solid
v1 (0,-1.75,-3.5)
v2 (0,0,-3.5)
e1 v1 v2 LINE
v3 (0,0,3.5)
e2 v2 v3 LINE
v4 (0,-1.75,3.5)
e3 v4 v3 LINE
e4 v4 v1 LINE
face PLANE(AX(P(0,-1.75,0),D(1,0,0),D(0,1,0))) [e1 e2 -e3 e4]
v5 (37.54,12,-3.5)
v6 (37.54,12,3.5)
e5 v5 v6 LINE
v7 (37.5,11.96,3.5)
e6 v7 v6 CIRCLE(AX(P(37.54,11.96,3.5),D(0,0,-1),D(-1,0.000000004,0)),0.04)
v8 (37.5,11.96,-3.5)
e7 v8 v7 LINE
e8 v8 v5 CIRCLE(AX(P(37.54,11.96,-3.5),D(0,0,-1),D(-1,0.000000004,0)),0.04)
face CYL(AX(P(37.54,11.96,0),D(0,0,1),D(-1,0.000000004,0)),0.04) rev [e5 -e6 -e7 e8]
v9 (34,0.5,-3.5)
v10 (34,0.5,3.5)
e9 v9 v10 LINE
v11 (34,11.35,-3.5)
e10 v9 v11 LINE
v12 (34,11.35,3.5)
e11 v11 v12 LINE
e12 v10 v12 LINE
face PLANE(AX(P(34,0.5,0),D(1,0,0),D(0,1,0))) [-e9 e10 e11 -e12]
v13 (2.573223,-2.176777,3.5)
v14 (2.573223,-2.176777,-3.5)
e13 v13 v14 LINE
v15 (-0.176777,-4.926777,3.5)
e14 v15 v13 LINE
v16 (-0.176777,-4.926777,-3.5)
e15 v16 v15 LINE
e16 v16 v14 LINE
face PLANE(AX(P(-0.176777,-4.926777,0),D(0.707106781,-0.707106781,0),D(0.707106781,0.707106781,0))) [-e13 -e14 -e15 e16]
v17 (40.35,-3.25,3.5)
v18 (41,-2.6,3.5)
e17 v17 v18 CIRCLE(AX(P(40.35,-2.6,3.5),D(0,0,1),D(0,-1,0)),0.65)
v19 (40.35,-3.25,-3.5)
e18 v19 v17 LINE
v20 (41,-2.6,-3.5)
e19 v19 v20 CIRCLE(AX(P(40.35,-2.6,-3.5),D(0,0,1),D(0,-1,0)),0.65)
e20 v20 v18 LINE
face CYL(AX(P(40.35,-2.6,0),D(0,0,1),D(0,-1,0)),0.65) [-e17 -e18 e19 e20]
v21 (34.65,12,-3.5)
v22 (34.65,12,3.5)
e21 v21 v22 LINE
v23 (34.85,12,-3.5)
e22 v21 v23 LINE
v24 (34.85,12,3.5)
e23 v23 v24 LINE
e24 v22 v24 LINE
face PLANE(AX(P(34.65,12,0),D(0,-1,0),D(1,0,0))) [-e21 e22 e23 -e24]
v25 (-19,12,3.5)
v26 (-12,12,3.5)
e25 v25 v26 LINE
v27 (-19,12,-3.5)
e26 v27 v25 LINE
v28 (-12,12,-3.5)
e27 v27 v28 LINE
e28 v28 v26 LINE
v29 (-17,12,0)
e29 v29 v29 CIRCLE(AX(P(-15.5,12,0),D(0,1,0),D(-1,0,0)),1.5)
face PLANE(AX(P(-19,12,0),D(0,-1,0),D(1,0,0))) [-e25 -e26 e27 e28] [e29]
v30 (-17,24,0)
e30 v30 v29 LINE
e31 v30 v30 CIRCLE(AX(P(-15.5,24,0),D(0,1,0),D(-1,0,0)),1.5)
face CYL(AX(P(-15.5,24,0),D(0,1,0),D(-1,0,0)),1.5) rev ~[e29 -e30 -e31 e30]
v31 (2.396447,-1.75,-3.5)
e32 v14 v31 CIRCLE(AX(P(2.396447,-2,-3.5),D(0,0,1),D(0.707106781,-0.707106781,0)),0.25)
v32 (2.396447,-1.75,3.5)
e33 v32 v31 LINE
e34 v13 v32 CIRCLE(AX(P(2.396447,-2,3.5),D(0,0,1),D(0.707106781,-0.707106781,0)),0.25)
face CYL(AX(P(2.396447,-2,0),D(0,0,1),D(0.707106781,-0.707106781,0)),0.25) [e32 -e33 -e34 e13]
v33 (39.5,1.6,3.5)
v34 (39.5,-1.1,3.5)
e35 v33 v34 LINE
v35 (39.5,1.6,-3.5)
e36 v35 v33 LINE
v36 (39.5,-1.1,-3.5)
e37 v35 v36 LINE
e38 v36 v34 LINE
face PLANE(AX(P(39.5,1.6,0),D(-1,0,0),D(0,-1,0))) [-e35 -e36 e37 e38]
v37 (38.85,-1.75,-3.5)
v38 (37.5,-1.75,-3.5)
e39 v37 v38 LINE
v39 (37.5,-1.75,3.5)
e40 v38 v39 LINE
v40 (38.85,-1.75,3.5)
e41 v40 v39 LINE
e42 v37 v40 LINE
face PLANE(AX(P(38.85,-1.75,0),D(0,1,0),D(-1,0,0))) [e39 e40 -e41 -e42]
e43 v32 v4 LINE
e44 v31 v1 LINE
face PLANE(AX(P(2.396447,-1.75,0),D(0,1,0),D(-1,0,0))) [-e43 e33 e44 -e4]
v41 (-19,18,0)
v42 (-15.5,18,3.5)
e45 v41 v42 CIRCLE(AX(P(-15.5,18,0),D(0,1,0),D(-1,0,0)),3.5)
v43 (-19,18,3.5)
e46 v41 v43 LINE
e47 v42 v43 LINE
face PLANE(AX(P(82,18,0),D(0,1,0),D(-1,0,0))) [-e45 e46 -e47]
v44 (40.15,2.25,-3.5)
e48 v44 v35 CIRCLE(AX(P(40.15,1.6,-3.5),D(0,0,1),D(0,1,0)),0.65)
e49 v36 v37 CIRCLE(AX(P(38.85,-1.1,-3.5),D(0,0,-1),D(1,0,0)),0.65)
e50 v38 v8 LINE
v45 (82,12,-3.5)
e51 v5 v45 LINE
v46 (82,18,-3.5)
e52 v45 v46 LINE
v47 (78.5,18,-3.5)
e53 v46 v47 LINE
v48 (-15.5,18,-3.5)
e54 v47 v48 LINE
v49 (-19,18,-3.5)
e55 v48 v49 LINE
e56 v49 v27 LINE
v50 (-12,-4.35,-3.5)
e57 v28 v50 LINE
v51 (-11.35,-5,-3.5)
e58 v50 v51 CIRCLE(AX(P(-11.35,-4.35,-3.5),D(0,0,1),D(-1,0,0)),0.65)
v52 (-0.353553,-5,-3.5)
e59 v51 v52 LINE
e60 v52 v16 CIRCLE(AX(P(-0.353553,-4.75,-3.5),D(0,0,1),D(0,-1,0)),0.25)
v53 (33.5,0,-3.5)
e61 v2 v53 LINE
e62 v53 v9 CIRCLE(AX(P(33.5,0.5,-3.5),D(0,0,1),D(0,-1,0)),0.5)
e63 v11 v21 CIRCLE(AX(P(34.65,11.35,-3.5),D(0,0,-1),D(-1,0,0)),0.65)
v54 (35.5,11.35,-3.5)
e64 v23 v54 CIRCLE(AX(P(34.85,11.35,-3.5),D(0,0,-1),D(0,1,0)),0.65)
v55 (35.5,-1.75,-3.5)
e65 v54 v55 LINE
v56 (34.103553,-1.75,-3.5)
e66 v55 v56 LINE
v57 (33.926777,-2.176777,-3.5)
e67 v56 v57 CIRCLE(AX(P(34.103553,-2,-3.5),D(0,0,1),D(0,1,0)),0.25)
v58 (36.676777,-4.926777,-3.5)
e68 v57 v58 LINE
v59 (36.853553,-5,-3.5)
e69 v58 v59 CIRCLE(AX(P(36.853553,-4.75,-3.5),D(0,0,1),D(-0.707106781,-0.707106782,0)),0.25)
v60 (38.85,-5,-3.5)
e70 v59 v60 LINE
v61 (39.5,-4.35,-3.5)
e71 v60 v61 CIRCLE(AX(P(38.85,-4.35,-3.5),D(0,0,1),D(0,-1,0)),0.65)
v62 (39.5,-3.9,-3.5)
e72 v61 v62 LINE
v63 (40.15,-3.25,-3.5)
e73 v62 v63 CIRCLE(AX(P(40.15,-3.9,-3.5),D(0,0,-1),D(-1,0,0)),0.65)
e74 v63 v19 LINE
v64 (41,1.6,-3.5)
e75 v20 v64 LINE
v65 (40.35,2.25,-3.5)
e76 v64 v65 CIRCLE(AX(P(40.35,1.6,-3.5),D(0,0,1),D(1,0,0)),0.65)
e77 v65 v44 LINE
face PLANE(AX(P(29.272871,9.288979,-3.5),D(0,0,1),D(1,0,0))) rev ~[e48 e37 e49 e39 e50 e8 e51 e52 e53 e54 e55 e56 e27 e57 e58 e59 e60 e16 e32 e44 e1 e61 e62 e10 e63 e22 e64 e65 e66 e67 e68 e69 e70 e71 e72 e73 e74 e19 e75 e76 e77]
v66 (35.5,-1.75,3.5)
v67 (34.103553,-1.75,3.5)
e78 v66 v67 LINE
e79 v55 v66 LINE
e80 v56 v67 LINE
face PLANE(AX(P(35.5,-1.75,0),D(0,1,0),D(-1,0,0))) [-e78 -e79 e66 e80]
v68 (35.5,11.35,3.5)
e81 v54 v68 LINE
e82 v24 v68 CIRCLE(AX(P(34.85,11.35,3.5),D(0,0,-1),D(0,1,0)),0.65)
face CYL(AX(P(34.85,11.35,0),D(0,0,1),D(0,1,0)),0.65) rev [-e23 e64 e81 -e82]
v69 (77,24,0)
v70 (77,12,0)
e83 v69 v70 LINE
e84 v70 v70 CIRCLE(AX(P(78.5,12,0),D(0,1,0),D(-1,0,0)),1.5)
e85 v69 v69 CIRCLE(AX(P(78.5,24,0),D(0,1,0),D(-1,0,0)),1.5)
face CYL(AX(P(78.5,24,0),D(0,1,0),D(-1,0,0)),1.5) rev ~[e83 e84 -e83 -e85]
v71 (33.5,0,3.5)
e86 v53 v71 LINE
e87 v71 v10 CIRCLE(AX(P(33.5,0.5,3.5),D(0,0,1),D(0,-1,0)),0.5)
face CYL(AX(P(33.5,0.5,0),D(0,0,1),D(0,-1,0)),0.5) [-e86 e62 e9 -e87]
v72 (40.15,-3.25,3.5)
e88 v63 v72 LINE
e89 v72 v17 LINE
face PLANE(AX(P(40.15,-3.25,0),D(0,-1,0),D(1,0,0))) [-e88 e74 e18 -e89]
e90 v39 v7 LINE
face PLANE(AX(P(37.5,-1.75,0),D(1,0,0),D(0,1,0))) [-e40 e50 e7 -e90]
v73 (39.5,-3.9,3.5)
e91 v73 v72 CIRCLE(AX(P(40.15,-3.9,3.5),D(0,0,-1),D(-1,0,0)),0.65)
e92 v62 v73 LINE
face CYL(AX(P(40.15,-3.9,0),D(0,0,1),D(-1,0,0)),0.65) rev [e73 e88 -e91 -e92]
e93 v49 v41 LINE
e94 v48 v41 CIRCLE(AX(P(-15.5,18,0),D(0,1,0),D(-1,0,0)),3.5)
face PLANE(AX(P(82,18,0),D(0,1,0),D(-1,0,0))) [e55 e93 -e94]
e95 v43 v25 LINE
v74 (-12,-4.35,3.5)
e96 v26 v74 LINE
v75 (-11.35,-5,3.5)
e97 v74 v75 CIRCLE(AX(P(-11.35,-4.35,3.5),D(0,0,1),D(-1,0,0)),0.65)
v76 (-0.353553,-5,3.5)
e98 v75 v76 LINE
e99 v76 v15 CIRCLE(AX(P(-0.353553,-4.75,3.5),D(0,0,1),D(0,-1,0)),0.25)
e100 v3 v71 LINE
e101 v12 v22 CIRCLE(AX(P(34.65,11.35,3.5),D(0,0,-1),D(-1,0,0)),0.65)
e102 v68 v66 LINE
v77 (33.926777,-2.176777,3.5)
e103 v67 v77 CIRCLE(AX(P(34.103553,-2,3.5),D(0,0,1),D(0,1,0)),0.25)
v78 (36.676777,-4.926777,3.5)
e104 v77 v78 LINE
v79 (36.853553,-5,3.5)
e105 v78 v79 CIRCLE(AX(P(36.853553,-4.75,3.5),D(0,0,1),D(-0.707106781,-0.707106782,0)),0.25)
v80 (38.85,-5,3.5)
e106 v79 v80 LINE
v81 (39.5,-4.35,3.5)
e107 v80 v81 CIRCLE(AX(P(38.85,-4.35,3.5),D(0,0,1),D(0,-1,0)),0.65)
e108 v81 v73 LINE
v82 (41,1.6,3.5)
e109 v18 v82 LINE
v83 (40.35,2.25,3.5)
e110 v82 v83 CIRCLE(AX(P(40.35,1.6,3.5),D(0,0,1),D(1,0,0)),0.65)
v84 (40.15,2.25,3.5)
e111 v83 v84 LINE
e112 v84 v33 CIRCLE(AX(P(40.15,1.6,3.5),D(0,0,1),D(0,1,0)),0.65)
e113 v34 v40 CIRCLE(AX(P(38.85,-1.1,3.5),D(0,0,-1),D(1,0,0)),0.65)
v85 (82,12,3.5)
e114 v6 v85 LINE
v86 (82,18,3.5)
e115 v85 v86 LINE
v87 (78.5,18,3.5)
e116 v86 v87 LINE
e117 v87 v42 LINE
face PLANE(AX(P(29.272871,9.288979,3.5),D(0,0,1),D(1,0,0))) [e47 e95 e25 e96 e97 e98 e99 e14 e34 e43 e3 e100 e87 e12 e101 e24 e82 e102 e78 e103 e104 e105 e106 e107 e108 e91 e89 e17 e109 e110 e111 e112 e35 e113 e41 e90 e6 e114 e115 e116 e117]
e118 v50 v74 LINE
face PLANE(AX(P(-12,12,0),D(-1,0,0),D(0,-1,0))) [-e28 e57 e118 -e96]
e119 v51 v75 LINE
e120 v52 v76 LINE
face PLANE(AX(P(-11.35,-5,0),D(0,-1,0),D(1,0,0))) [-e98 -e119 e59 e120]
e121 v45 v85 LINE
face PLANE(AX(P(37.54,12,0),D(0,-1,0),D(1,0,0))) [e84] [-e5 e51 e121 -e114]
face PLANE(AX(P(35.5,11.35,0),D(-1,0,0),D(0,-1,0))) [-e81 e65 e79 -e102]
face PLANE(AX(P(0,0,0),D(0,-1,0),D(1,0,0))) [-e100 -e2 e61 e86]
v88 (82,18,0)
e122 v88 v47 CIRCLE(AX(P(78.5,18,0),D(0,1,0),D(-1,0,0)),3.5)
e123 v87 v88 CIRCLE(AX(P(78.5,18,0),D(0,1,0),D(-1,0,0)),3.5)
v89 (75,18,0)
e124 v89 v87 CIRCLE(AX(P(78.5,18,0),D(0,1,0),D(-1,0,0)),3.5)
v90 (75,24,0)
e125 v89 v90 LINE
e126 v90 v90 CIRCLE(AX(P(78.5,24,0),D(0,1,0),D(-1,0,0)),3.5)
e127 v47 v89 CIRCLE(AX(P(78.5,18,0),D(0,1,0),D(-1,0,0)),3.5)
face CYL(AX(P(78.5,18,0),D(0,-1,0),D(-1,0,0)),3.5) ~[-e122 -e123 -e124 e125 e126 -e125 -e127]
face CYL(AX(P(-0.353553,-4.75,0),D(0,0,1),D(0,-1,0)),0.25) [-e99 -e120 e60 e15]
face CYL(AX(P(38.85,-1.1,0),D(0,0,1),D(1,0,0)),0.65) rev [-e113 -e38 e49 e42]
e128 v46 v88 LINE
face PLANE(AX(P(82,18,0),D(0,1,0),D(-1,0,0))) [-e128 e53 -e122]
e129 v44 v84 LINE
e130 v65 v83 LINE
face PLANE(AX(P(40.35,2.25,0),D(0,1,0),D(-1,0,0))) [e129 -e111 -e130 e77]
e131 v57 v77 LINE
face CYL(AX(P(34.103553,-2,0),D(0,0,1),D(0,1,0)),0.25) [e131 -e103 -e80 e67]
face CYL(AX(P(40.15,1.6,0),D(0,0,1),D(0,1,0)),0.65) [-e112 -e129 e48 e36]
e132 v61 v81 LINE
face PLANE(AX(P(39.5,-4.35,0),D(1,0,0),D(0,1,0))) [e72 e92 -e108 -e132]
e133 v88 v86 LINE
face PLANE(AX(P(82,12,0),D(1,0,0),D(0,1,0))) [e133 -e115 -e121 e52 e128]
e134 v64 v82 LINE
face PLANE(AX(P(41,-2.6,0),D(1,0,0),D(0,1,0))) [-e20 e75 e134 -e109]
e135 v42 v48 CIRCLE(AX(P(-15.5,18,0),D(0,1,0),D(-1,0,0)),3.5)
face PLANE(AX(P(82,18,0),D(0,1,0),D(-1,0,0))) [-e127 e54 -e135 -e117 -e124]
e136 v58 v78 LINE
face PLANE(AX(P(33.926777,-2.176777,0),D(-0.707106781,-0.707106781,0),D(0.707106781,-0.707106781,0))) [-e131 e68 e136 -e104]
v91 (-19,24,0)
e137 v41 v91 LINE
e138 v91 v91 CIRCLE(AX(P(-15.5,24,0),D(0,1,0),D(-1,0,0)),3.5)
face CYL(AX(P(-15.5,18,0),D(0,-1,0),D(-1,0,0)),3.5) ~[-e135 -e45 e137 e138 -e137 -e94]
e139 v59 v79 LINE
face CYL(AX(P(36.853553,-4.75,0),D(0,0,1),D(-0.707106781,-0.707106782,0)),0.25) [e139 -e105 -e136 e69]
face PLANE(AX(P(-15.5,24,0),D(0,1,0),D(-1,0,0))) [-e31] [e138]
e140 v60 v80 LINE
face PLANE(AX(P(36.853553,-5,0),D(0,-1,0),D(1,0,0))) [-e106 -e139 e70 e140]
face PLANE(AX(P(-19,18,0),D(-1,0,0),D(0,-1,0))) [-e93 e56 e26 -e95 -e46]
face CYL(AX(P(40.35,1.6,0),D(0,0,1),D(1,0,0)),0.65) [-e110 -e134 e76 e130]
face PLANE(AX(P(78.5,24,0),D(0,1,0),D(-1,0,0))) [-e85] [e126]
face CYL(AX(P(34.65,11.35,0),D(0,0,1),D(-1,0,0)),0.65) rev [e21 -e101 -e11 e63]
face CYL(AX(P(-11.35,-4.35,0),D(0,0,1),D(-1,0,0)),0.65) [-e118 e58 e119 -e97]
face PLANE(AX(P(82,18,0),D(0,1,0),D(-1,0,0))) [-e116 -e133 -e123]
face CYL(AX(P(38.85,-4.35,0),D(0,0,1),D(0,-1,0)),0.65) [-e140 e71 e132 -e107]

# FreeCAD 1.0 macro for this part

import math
import FreeCAD as App
import Part
import Sketcher

V = App.Vector

doc = App.newDocument("Part")
body = doc.addObject("PartDesign::Body", "Body")

sketch1 = body.newObject("Sketcher::SketchObject", "Sketch")
sketch1.AttachmentSupport = (doc.getObject("XY_Plane"), [""])
sketch1.MapMode = "FlatFace"
sketch1.addGeometry([
    Part.LineSegment(V(0, -1.75, 0), V(0, 0, 0)),
    Part.LineSegment(V(0, 0, 0), V(33.5, 0, 0)),
    Part.ArcOfCircle(Part.Circle(V(33.5, 0.5, 0), V(0, 0, 1), 0.5), math.radians(-90), math.radians(0)),
    Part.LineSegment(V(34, 0.5, 0), V(34, 11.35, 0)),
    Part.ArcOfCircle(Part.Circle(V(34.65, 11.35, 0), V(0, 0, 1), 0.65), math.radians(90), math.radians(180)),
    Part.LineSegment(V(34.65, 12, 0), V(34.85, 12, 0)),
    Part.ArcOfCircle(Part.Circle(V(34.85, 11.35, 0), V(0, 0, 1), 0.65), math.radians(0), math.radians(90)),
    Part.LineSegment(V(35.5, 11.35, 0), V(35.5, -1.75, 0)),
    Part.LineSegment(V(35.5, -1.75, 0), V(34.104, -1.75, 0)),
    Part.ArcOfCircle(Part.Circle(V(34.104, -2, 0), V(0, 0, 1), 0.25), math.radians(90), math.radians(225)),
    Part.LineSegment(V(33.927, -2.177, 0), V(36.677, -4.927, 0)),
    Part.ArcOfCircle(Part.Circle(V(36.854, -4.75, 0), V(0, 0, 1), 0.25), math.radians(-135), math.radians(-90)),
    Part.LineSegment(V(36.854, -5, 0), V(38.85, -5, 0)),
    Part.ArcOfCircle(Part.Circle(V(38.85, -4.35, 0), V(0, 0, 1), 0.65), math.radians(-90), math.radians(0)),
    Part.LineSegment(V(39.5, -4.35, 0), V(39.5, -3.9, 0)),
    Part.ArcOfCircle(Part.Circle(V(40.15, -3.9, 0), V(0, 0, 1), 0.65), math.radians(90), math.radians(180)),
    Part.LineSegment(V(40.15, -3.25, 0), V(40.35, -3.25, 0)),
    Part.ArcOfCircle(Part.Circle(V(40.35, -2.6, 0), V(0, 0, 1), 0.65), math.radians(-90), math.radians(0)),
    Part.LineSegment(V(41, -2.6, 0), V(41, 1.6, 0)),
    Part.ArcOfCircle(Part.Circle(V(40.35, 1.6, 0), V(0, 0, 1), 0.65), math.radians(0), math.radians(90)),
    Part.LineSegment(V(40.35, 2.25, 0), V(40.15, 2.25, 0)),
    Part.ArcOfCircle(Part.Circle(V(40.15, 1.6, 0), V(0, 0, 1), 0.65), math.radians(90), math.radians(180)),
    Part.LineSegment(V(39.5, 1.6, 0), V(39.5, -1.1, 0)),
    Part.ArcOfCircle(Part.Circle(V(38.85, -1.1, 0), V(0, 0, 1), 0.65), math.radians(-90), math.radians(0)),
    Part.LineSegment(V(38.85, -1.75, 0), V(37.5, -1.75, 0)),
    Part.LineSegment(V(37.5, -1.75, 0), V(37.5, 11.96, 0)),
    Part.ArcOfCircle(Part.Circle(V(37.54, 11.96, 0), V(0, 0, 1), 0.04), math.radians(90), math.radians(180)),
    Part.LineSegment(V(37.54, 12, 0), V(82, 12, 0)),
    Part.LineSegment(V(82, 12, 0), V(82, 18, 0)),
    Part.LineSegment(V(82, 18, 0), V(-19, 18, 0)),
    Part.LineSegment(V(-19, 18, 0), V(-19, 12, 0)),
    Part.LineSegment(V(-19, 12, 0), V(-12, 12, 0)),
    Part.LineSegment(V(-12, 12, 0), V(-12, -4.35, 0)),
    Part.ArcOfCircle(Part.Circle(V(-11.35, -4.35, 0), V(0, 0, 1), 0.65), math.radians(180), math.radians(270)),
    Part.LineSegment(V(-11.35, -5, 0), V(-0.354, -5, 0)),
    Part.ArcOfCircle(Part.Circle(V(-0.354, -4.75, 0), V(0, 0, 1), 0.25), math.radians(-90), math.radians(-45)),
    Part.LineSegment(V(-0.177, -4.927, 0), V(2.573, -2.177, 0)),
    Part.ArcOfCircle(Part.Circle(V(2.396, -2, 0), V(0, 0, 1), 0.25), math.radians(-45), math.radians(90)),
    Part.LineSegment(V(2.396, -1.75, 0), V(0, -1.75, 0)),
], False)
sketch1.addConstraint([
    Sketcher.Constraint("Coincident", 0, 2, 1, 1),
    Sketcher.Constraint("Tangent", 1, 2, 2, 1),
    Sketcher.Constraint("Tangent", 2, 2, 3, 1),
    Sketcher.Constraint("Tangent", 3, 2, 4, 2),
    Sketcher.Constraint("Tangent", 4, 1, 5, 1),
    Sketcher.Constraint("Tangent", 5, 2, 6, 2),
    Sketcher.Constraint("Tangent", 6, 1, 7, 1),
    Sketcher.Constraint("Coincident", 7, 2, 8, 1),
    Sketcher.Constraint("Tangent", 8, 2, 9, 1),
    Sketcher.Constraint("Tangent", 9, 2, 10, 1),
    Sketcher.Constraint("Tangent", 10, 2, 11, 1),
    Sketcher.Constraint("Tangent", 11, 2, 12, 1),
    Sketcher.Constraint("Tangent", 12, 2, 13, 1),
    Sketcher.Constraint("Tangent", 13, 2, 14, 1),
    Sketcher.Constraint("Tangent", 14, 2, 15, 2),
    Sketcher.Constraint("Tangent", 15, 1, 16, 1),
    Sketcher.Constraint("Tangent", 16, 2, 17, 1),
    Sketcher.Constraint("Tangent", 17, 2, 18, 1),
    Sketcher.Constraint("Tangent", 18, 2, 19, 1),
    Sketcher.Constraint("Tangent", 19, 2, 20, 1),
    Sketcher.Constraint("Tangent", 20, 2, 21, 1),
    Sketcher.Constraint("Tangent", 21, 2, 22, 1),
    Sketcher.Constraint("Tangent", 22, 2, 23, 2),
    Sketcher.Constraint("Tangent", 23, 1, 24, 1),
    Sketcher.Constraint("Coincident", 24, 2, 25, 1),
    Sketcher.Constraint("Tangent", 25, 2, 26, 2),
    Sketcher.Constraint("Tangent", 26, 1, 27, 1),
    Sketcher.Constraint("Coincident", 27, 2, 28, 1),
    Sketcher.Constraint("Coincident", 28, 2, 29, 1),
    Sketcher.Constraint("Coincident", 29, 2, 30, 1),
    Sketcher.Constraint("Coincident", 30, 2, 31, 1),
    Sketcher.Constraint("Coincident", 31, 2, 32, 1),
    Sketcher.Constraint("Tangent", 32, 2, 33, 1),
    Sketcher.Constraint("Tangent", 33, 2, 34, 1),
    Sketcher.Constraint("Tangent", 34, 2, 35, 1),
    Sketcher.Constraint("Tangent", 35, 2, 36, 1),
    Sketcher.Constraint("Tangent", 36, 2, 37, 1),
    Sketcher.Constraint("Tangent", 37, 2, 38, 1),
    Sketcher.Constraint("Coincident", 38, 2, 0, 1),
    Sketcher.Constraint("Vertical", 0),
    Sketcher.Constraint("Horizontal", 1),
    Sketcher.Constraint("Vertical", 3),
    Sketcher.Constraint("Horizontal", 5),
    Sketcher.Constraint("Vertical", 7),
    Sketcher.Constraint("Horizontal", 8),
    Sketcher.Constraint("Horizontal", 12),
    Sketcher.Constraint("Vertical", 14),
    Sketcher.Constraint("Horizontal", 16),
    Sketcher.Constraint("Vertical", 18),
    Sketcher.Constraint("Horizontal", 20),
    Sketcher.Constraint("Vertical", 22),
    Sketcher.Constraint("Horizontal", 24),
    Sketcher.Constraint("Vertical", 25),
    Sketcher.Constraint("Horizontal", 27),
    Sketcher.Constraint("Vertical", 28),
    Sketcher.Constraint("Horizontal", 29),
    Sketcher.Constraint("Vertical", 30),
    Sketcher.Constraint("Horizontal", 31),
    Sketcher.Constraint("Vertical", 32),
    Sketcher.Constraint("Horizontal", 34),
    Sketcher.Constraint("Horizontal", 38),
    Sketcher.Constraint("Coincident", 0, 2, -1, 1),
    Sketcher.Constraint("Equal", 4, 6),
    Sketcher.Constraint("Equal", 9, 11),
    Sketcher.Constraint("Equal", 6, 13),
    Sketcher.Constraint("Equal", 13, 15),
    Sketcher.Constraint("Equal", 15, 17),
    Sketcher.Constraint("Equal", 17, 19),
    Sketcher.Constraint("Equal", 19, 21),
    Sketcher.Constraint("Equal", 21, 23),
    Sketcher.Constraint("Equal", 23, 33),
    Sketcher.Constraint("Equal", 11, 35),
    Sketcher.Constraint("Equal", 35, 37),
    Sketcher.Constraint("Perpendicular", 10, 36),
    Sketcher.Constraint("Horizontal", 13, 3, 33, 3),
    Sketcher.Constraint("Horizontal", 9, 3, 37, 3),
    Sketcher.Constraint("Horizontal", 8, 2, 23, 1),
    Sketcher.Constraint("Horizontal", 5, 2, 26, 1),
    Sketcher.Constraint("Horizontal", 27, 2, 30, 2),
    Sketcher.Constraint("Horizontal", 10, 2, 35, 2),
    Sketcher.Constraint("Vertical", 15, 3, 21, 3),
    Sketcher.Constraint("Equal", 5, 16),
    Sketcher.Constraint("Radius", 2, 0.5),
    Sketcher.Constraint("DistanceX", 29, 2, 29, 1, 101.0),
    Sketcher.Constraint("DistanceX", 31, 1, 31, 2, 7.0),
    Sketcher.Constraint("DistanceY", 28, 1, 28, 2, 6.0),
    Sketcher.Constraint("Radius", 4, 0.65),
    Sketcher.Constraint("Radius", 9, 0.25),
    Sketcher.Constraint("Radius", 26, 0.04),
    Sketcher.Constraint("DistanceX", 1, 1, 1, 2, 33.5),
    Sketcher.Constraint("DistanceX", 5, 1, 5, 2, 0.2),
    Sketcher.Constraint("DistanceY", 7, 2, 7, 1, 13.1),
    Sketcher.Constraint("DistanceY", 18, 1, 18, 2, 4.2),
    Sketcher.Constraint("DistanceY", 22, 2, 22, 1, 2.7),
    Sketcher.Constraint("DistanceY", 9, 3, -1, 1, 2.0),
    Sketcher.Constraint("DistanceY", 11, 2, -1, 1, 5.0),
    Sketcher.Constraint("DistanceX", -1, 1, 17, 2, 41.0),
    Sketcher.Constraint("DistanceX", -1, 1, 27, 2, 82.0),
    Sketcher.Constraint("DistanceX", 7, 2, 24, 2, 2.0),
    Sketcher.Constraint("DistanceX", 8, 2, 8, 1, 1.396447),
    Sketcher.Constraint("DistanceX", 34, 1, 34, 2, 10.996447),
])
pad1 = body.newObject("PartDesign::Pad", "Pad")
pad1.Profile = sketch1
pad1.Length = 7
pad1.Midplane = True

sketch2 = body.newObject("Sketcher::SketchObject", "Sketch001")
sketch2.AttachmentSupport = (doc.getObject("XZ_Plane"), [""])
sketch2.MapMode = "FlatFace"
sketch2.AttachmentOffset = App.Placement(V(0, 0, -18), App.Rotation())
sketch2.addGeometry([
    Part.Circle(V(78.5, 0, 0), V(0, 0, 1), 3.5),
    Part.Circle(V(-15.5, 0, 0), V(0, 0, 1), 3.5),
], False)
sketch2.addConstraint([
    Sketcher.Constraint("Equal", 0, 1),
    Sketcher.Constraint("PointOnObject", 0, 3, -1),
    Sketcher.Constraint("PointOnObject", 1, 3, -1),
    Sketcher.Constraint("Diameter", 0, 7.0),
    Sketcher.Constraint("DistanceX", 1, 3, 0, 3, 94.0),
    Sketcher.Constraint("DistanceX", -1, 1, 0, 3, 78.5),
])
pad2 = body.newObject("PartDesign::Pad", "Pad001")
pad2.Profile = sketch2
pad2.Length = 6
pad2.Reversed = True

sketch3 = body.newObject("Sketcher::SketchObject", "Sketch002")
sketch3.AttachmentSupport = (doc.getObject("XZ_Plane"), [""])
sketch3.MapMode = "FlatFace"
sketch3.AttachmentOffset = App.Placement(V(0, 0, -24), App.Rotation())
sketch3.addGeometry([
    Part.Circle(V(78.5, 0, 0), V(0, 0, 1), 1.5),
    Part.Circle(V(-15.5, 0, 0), V(0, 0, 1), 1.5),
], False)
sketch3.addConstraint([
    Sketcher.Constraint("Equal", 0, 1),
    Sketcher.Constraint("PointOnObject", 0, 3, -1),
    Sketcher.Constraint("PointOnObject", 1, 3, -1),
    Sketcher.Constraint("Diameter", 0, 3.0),
    Sketcher.Constraint("DistanceX", 1, 3, 0, 3, 94.0),
    Sketcher.Constraint("DistanceX", -1, 1, 0, 3, 78.5),
])
pocket1 = body.newObject("PartDesign::Pocket", "Pocket")
pocket1.Profile = sketch3
pocket1.Type = "ThroughAll"
pocket1.Reversed = True

doc.recompute()
